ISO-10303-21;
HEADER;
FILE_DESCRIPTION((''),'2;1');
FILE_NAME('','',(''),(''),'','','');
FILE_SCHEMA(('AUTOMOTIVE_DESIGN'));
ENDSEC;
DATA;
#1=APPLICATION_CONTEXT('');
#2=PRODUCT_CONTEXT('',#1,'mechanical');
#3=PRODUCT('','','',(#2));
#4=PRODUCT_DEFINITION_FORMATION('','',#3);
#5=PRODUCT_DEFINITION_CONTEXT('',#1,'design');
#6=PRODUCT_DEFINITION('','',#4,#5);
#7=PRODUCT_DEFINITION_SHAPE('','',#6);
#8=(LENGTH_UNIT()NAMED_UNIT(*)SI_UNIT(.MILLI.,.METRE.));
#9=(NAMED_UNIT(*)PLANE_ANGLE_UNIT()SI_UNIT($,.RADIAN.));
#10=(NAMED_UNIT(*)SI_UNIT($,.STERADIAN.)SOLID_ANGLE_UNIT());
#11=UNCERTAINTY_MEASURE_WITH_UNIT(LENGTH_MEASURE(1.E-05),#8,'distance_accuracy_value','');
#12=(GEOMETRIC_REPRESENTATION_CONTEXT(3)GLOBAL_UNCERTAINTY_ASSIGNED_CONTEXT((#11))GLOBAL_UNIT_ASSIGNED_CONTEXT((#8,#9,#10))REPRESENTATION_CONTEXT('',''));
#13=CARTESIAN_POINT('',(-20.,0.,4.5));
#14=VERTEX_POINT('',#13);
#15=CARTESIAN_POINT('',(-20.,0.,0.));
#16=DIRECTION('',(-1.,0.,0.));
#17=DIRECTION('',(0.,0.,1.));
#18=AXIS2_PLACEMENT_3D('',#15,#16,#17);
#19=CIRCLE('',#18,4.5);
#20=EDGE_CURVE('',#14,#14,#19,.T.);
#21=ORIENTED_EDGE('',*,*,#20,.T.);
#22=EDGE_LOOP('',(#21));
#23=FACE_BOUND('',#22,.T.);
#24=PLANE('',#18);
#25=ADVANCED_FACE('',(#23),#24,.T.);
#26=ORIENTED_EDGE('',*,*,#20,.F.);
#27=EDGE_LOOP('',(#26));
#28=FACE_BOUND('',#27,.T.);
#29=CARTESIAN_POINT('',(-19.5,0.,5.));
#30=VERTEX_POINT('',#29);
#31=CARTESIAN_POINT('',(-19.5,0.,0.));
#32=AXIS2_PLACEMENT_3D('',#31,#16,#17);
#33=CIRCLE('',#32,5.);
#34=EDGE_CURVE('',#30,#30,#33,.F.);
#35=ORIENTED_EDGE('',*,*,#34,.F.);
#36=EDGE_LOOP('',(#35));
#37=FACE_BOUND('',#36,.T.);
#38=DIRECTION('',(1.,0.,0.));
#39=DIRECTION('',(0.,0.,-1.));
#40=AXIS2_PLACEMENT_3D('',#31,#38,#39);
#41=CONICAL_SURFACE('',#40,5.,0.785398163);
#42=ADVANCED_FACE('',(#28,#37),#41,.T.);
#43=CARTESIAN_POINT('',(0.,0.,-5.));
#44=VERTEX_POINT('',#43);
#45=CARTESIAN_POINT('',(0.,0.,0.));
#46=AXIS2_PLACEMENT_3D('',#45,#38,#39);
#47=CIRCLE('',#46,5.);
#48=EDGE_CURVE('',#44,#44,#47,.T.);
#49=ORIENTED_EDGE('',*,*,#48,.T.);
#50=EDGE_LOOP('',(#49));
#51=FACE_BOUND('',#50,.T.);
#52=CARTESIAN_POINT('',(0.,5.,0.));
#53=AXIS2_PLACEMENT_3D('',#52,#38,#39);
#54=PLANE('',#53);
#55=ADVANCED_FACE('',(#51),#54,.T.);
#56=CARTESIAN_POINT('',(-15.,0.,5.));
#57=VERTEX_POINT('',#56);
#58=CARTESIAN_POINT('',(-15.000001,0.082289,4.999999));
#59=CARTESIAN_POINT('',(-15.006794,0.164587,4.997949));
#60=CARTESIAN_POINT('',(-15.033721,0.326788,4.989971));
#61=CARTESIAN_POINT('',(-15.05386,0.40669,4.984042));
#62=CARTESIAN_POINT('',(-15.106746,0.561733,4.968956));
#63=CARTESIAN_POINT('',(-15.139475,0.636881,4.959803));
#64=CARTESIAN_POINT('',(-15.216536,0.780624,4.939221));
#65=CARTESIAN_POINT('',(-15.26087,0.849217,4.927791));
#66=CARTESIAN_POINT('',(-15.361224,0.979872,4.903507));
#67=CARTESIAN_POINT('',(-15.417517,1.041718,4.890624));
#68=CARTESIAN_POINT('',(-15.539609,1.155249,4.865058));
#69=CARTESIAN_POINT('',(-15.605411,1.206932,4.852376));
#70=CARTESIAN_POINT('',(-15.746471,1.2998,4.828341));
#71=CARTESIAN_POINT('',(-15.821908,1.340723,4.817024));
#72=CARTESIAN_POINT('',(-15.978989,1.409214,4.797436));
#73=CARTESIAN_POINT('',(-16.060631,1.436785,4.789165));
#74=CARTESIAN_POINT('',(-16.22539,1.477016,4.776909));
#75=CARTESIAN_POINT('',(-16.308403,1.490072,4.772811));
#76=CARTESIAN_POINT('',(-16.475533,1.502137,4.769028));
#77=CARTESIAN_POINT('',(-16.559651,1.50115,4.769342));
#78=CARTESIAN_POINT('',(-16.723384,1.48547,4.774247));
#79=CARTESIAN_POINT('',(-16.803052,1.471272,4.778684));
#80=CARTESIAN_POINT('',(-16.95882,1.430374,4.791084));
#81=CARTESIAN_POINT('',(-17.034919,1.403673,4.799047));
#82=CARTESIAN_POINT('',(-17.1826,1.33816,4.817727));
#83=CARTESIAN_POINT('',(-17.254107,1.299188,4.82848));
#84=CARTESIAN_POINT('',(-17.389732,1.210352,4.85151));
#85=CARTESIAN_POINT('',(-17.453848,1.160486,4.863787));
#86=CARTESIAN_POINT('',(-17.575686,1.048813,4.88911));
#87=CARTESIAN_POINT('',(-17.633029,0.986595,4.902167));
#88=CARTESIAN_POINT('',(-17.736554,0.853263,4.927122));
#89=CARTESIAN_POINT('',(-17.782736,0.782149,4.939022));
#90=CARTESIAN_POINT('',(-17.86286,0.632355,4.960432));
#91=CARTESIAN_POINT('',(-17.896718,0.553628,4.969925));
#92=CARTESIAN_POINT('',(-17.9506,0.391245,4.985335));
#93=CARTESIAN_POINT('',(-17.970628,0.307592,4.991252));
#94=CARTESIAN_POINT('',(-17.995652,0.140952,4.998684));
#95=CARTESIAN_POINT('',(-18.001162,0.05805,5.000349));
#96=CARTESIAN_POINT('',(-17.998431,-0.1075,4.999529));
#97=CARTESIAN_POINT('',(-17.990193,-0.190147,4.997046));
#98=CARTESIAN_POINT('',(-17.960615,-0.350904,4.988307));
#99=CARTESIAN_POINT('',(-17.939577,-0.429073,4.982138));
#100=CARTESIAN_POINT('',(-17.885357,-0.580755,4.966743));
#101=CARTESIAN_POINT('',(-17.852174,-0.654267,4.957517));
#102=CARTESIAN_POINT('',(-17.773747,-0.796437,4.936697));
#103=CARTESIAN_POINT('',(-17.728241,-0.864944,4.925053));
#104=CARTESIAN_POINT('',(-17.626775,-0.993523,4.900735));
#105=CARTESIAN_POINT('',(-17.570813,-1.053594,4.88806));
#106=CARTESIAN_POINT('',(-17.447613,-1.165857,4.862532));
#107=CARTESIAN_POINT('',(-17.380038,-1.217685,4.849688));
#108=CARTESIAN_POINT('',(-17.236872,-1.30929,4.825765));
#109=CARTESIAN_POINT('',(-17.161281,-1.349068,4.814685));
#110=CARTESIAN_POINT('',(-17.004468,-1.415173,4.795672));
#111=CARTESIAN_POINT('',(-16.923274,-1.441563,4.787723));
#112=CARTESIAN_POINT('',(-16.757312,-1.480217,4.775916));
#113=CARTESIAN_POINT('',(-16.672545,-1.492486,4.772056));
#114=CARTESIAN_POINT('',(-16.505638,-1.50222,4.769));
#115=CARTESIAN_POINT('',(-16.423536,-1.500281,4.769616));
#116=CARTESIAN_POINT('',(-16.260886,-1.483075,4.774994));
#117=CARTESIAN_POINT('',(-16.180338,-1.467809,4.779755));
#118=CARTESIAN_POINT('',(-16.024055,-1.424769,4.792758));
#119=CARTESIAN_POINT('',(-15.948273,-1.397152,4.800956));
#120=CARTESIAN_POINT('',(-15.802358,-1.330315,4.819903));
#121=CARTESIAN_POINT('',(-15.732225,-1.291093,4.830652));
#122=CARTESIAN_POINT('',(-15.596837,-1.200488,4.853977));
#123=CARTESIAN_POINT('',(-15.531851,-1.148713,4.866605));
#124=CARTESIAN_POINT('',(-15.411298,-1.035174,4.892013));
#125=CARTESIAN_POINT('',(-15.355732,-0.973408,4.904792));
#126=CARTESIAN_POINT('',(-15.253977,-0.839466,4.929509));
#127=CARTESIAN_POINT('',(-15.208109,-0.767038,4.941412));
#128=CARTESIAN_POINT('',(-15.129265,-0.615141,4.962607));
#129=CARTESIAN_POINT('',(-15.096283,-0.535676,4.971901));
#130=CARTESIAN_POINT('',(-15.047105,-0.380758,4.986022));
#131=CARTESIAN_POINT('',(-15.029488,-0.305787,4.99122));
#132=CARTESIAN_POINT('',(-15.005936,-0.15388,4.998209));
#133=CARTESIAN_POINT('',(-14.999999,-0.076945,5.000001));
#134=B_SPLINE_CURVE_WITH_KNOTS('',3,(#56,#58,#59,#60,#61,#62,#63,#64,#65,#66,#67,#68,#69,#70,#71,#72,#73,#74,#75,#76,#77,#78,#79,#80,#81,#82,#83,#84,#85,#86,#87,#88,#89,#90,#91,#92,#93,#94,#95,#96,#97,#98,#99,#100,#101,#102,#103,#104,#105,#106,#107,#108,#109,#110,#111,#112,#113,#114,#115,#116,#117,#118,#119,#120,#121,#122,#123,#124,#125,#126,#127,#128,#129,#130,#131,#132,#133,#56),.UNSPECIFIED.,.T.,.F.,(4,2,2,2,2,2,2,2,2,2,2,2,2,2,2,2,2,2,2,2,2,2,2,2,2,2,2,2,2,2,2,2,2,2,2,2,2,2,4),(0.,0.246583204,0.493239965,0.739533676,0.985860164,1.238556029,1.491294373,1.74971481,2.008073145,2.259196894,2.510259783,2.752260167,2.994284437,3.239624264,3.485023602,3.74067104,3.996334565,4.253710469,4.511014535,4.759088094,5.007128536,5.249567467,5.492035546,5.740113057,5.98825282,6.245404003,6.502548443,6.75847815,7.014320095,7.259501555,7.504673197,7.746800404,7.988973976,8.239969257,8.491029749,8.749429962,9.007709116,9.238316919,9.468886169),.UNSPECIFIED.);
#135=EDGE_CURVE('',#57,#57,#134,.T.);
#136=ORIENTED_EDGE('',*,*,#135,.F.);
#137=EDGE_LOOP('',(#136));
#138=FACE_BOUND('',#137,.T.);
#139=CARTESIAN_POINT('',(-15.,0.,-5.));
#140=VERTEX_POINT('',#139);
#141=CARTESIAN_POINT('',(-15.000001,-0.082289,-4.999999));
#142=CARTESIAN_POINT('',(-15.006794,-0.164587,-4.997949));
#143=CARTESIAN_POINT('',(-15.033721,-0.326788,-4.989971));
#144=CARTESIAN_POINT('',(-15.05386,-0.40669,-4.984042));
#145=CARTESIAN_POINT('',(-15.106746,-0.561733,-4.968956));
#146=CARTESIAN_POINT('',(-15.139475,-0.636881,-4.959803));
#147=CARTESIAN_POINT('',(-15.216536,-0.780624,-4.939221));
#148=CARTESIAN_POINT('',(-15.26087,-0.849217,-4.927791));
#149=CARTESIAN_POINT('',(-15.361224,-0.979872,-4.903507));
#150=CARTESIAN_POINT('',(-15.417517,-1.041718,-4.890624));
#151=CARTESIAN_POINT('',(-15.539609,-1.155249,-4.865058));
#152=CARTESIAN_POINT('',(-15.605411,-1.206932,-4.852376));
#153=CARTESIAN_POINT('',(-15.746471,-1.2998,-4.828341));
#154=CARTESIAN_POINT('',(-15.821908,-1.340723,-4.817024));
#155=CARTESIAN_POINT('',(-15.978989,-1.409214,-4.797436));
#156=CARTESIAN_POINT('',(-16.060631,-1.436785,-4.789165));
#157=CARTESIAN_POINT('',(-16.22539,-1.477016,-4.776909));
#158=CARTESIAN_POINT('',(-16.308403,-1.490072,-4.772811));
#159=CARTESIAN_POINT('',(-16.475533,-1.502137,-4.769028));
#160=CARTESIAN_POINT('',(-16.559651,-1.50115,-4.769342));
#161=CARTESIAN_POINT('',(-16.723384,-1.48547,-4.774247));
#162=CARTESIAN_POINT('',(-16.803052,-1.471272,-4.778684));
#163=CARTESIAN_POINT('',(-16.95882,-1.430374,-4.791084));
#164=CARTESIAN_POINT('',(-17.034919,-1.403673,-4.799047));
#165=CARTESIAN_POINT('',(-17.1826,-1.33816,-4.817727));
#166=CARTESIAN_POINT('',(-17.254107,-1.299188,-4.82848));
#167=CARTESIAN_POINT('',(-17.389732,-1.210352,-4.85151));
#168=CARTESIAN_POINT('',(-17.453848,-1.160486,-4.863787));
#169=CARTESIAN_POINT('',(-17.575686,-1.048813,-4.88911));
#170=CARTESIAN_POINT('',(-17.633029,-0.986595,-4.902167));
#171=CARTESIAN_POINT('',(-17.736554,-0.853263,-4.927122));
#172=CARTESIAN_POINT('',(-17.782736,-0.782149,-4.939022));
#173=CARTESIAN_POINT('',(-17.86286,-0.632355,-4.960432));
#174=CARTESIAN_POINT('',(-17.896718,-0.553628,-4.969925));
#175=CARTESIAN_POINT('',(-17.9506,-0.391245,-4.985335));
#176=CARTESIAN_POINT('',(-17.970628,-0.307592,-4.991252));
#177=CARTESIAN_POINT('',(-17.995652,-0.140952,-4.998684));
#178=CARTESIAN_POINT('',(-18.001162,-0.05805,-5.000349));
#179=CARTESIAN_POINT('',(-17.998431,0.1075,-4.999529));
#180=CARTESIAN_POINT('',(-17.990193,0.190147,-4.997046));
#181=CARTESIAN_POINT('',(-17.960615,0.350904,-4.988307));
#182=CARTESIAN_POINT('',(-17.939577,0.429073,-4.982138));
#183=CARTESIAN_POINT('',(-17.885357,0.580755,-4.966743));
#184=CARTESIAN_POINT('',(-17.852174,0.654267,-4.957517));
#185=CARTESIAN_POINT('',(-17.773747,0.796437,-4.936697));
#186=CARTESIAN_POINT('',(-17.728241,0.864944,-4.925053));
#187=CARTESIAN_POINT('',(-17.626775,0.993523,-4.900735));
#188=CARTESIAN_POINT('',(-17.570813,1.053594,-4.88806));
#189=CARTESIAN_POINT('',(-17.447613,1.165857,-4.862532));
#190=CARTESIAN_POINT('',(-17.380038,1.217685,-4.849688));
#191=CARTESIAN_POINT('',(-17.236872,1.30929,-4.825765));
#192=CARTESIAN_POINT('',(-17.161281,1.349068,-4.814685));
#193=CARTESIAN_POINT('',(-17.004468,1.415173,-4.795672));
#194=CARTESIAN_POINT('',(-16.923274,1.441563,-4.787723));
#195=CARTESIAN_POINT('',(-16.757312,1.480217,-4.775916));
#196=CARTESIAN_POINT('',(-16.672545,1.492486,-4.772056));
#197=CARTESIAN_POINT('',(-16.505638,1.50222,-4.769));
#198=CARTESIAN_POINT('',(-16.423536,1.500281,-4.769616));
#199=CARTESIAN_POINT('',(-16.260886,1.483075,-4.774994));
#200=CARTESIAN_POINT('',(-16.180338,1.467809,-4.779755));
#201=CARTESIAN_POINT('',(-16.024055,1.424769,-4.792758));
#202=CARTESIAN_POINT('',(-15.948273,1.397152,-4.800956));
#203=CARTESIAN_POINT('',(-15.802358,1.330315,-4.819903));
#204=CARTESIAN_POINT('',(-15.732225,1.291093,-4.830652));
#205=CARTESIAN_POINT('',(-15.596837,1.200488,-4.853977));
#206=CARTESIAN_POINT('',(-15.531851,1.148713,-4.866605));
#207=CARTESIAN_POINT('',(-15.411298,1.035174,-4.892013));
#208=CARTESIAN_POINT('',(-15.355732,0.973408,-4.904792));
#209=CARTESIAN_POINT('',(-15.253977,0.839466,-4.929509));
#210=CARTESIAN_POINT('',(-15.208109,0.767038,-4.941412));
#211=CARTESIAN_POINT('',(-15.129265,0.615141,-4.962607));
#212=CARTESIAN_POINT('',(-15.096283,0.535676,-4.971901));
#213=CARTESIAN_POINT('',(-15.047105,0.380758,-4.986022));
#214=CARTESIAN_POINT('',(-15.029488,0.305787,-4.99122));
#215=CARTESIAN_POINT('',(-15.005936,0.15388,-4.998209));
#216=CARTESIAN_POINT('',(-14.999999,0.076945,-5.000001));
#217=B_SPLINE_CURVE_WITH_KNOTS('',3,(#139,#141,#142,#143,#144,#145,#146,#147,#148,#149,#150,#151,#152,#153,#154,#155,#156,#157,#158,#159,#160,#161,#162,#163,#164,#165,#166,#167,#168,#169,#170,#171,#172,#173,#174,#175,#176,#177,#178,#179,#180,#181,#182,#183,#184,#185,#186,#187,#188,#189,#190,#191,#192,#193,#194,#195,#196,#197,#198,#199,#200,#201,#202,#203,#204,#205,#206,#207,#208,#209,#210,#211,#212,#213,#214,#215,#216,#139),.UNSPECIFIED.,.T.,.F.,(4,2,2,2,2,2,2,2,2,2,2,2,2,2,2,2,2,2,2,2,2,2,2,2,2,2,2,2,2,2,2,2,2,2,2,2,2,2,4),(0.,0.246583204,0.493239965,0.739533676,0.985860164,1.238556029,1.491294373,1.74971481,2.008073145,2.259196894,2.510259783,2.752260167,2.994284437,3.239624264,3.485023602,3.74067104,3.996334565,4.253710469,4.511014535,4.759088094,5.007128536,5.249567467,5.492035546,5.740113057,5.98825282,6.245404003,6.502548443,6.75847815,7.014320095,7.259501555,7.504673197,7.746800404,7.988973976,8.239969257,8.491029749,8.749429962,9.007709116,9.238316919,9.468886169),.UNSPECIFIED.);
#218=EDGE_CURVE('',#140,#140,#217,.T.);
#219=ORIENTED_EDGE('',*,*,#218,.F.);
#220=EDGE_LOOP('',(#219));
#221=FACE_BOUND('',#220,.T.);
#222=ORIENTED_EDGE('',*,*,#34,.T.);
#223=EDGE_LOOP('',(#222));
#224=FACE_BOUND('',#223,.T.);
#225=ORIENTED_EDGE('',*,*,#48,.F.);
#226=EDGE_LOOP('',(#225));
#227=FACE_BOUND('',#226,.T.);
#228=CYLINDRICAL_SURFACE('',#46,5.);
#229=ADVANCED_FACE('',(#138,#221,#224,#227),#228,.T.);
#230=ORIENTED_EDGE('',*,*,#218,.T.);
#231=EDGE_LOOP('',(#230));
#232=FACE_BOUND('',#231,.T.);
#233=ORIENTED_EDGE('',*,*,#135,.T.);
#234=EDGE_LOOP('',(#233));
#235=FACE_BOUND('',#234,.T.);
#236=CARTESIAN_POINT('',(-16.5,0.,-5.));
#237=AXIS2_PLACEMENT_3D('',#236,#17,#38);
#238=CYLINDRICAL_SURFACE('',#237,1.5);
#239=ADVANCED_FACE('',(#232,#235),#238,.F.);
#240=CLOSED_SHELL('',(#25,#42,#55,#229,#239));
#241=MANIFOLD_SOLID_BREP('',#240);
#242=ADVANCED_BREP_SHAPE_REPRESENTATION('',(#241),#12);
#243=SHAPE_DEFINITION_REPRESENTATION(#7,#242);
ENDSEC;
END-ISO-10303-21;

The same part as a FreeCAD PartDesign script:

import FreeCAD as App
import Part
import Sketcher


def edges_at(feature, points):
    """Names of the edges that pass closest to the given points."""
    edges = feature.Shape.Edges
    near = lambda p: min(range(len(edges)), key=lambda i: edges[i].distToShape(Part.Vertex(*p))[0])
    return sorted({f"Edge{near(p) + 1}" for p in points})


def add_polygon(sketch, points):
    """Adds a closed chain of lines whose ends are joined by coincident constraints."""
    first, n = sketch.GeometryCount, len(points)
    for a, b in zip(points, points[1:] + points[:1]):
        sketch.addGeometry(Part.LineSegment(App.Vector(*a, 0), App.Vector(*b, 0)), False)
    for i in range(n):
        sketch.addConstraint(Sketcher.Constraint("Coincident", first + i, 2, first + (i + 1) % n, 1))

doc = App.newDocument("Part")
body = doc.addObject("PartDesign::Body", "Body")

sketch1 = doc.addObject("Sketcher::SketchObject", "Sketch")
body.addObject(sketch1)
sketch1.AttachmentSupport = (doc.XY_Plane, [""])
sketch1.MapMode = "FlatFace"
add_polygon(sketch1, [(-20, 5), (-20, 0), (0, 0), (0, 5)])
sketch1.addConstraint([
    Sketcher.Constraint("Vertical", 0),
    Sketcher.Constraint("Horizontal", 1),
    Sketcher.Constraint("Vertical", 2),
    Sketcher.Constraint("Horizontal", 3),
    Sketcher.Constraint("Coincident", 1, 2, -1, 1),
    Sketcher.Constraint("DistanceX", 1, 1, 1, 2, 20.0),
    Sketcher.Constraint("DistanceY", 0, 2, 0, 1, 5.0),
])
revolution = doc.addObject("PartDesign::Revolution", "Revolution")
body.addObject(revolution)
revolution.Profile = sketch1
revolution.ReferenceAxis = (sketch1, ["H_Axis"])
revolution.Angle = 360
doc.recompute()

chamfer = doc.addObject("PartDesign::Chamfer", "Chamfer")
body.addObject(chamfer)
chamfer.Base = (revolution, edges_at(revolution, [(-20, 0, 5)]))
chamfer.Size = 0.5

sketch2 = doc.addObject("Sketcher::SketchObject", "Sketch001")
body.addObject(sketch2)
sketch2.AttachmentSupport = (doc.XY_Plane, [""])
sketch2.MapMode = "FlatFace"
sketch2.addGeometry(Part.Circle(App.Vector(-16.5, 0, 0), App.Vector(0, 0, 1), 1.5), False)
sketch2.addConstraint([
    Sketcher.Constraint("PointOnObject", 0, 3, -1),
    Sketcher.Constraint("Diameter", 0, 3.0),
    Sketcher.Constraint("DistanceX", 0, 3, -1, 1, 16.5),
])
pocket1 = doc.addObject("PartDesign::Pocket", "Pocket")
body.addObject(pocket1)
pocket1.Profile = sketch2
pocket1.Type = "ThroughAll"
pocket1.Midplane = True

doc.recompute()
